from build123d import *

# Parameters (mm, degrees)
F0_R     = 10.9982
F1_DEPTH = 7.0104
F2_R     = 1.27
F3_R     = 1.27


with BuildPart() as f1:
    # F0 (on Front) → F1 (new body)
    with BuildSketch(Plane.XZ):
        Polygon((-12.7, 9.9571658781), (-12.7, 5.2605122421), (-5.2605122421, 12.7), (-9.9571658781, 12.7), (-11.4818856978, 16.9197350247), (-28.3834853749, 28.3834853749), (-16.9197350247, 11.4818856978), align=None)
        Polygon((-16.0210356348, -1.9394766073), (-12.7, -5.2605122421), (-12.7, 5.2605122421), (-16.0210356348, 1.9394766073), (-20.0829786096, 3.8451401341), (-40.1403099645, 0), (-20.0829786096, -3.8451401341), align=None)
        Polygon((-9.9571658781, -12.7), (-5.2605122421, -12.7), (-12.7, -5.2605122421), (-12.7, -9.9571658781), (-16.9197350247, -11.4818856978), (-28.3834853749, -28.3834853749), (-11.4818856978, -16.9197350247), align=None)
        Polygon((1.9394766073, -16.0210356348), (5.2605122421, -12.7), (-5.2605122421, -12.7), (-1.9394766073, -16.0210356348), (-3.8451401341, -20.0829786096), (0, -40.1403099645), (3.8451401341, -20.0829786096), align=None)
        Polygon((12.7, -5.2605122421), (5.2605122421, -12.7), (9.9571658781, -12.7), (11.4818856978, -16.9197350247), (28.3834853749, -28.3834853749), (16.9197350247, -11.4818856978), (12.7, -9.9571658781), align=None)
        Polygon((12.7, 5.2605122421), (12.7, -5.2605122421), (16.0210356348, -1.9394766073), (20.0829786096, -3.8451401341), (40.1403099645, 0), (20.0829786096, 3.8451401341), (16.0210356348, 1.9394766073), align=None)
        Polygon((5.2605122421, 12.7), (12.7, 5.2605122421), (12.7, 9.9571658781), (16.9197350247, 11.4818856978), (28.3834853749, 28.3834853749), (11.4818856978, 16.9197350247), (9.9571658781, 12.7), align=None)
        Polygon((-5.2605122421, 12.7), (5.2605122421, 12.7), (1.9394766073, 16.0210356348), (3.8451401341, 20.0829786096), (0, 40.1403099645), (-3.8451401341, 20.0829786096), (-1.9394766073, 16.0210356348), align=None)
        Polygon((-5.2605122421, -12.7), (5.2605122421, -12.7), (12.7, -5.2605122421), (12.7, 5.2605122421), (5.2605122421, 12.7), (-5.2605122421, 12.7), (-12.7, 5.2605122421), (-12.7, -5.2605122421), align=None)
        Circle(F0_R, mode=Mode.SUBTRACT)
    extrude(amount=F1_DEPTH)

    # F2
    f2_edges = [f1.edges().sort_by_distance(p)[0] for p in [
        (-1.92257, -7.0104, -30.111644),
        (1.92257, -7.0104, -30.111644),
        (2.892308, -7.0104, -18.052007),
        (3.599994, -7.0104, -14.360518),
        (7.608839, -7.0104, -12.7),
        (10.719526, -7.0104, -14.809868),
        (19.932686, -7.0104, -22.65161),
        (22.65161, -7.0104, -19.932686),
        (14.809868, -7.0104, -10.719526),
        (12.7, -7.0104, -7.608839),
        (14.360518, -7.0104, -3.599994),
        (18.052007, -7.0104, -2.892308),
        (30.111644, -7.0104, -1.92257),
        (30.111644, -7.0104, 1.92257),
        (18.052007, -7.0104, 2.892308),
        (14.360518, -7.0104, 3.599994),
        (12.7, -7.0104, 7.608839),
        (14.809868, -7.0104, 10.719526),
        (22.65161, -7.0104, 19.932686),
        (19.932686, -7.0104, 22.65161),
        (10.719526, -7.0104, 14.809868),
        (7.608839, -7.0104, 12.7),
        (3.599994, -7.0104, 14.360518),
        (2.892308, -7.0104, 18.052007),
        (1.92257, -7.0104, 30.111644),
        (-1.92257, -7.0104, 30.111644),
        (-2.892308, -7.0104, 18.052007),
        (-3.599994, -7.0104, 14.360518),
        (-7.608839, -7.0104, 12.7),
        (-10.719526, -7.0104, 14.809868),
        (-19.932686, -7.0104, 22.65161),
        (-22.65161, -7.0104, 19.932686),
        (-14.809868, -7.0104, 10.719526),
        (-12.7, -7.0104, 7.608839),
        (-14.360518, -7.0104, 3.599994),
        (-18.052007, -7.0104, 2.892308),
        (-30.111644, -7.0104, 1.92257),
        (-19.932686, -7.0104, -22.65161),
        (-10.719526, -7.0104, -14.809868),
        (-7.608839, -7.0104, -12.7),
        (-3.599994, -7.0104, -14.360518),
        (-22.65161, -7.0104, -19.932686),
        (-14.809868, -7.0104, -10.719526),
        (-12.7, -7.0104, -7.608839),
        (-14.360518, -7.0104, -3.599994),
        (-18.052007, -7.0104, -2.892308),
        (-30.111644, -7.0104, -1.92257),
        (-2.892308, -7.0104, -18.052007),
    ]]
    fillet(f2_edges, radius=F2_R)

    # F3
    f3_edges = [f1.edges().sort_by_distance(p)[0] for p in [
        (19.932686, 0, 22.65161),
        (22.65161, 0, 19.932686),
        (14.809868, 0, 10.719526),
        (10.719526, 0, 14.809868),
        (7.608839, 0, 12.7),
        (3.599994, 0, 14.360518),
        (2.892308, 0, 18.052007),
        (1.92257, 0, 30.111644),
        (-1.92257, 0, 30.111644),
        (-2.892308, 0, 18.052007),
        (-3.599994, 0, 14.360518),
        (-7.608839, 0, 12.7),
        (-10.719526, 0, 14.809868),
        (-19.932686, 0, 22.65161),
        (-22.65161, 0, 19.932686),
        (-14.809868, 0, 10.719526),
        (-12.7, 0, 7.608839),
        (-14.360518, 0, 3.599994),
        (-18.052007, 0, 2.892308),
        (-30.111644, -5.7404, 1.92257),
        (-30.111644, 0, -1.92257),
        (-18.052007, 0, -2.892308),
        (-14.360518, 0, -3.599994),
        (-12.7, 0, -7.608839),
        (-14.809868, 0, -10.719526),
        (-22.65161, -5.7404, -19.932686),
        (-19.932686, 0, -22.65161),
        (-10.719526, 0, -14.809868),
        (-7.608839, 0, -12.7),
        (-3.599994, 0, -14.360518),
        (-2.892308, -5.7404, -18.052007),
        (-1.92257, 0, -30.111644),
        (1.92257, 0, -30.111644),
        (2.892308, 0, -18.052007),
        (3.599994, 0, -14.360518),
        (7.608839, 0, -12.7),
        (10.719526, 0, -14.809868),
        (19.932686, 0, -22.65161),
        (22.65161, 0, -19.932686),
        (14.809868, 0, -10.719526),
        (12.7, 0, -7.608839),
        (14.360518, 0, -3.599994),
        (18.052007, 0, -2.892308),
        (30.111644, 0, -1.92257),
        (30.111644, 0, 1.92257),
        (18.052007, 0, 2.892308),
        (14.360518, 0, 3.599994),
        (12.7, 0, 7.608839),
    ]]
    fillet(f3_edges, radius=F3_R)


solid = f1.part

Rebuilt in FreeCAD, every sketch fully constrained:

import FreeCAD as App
import Part
import Sketcher

V = App.Vector
Q = App.Units.Quantity


def edges_at(feature, points):
    """Names of the edges that pass closest to the given points."""
    edges = feature.Shape.Edges
    near = lambda p: min(range(len(edges)), key=lambda i: edges[i].distToShape(Part.Vertex(*p))[0])
    return sorted({f"Edge{near(p) + 1}" for p in points})


def add_polygon(sketch, points):
    """Adds a closed chain of lines whose ends are joined by coincident constraints."""
    first, n = sketch.GeometryCount, len(points)
    for a, b in zip(points, points[1:] + points[:1]):
        sketch.addGeometry(Part.LineSegment(App.Vector(*a, 0), App.Vector(*b, 0)), False)
    for i in range(n):
        sketch.addConstraint(Sketcher.Constraint("Coincident", first + i, 2, first + (i + 1) % n, 1))

doc = App.newDocument("Part")
params = doc.addObject("Spreadsheet::Sheet", "Params")
for row, (alias, value) in enumerate([
    ("sketch1_diameter", "0.866 in"),
    ("pad1_length", "0.276 in"),
    ("fillet_radius", "0.05 in"),
    ("fillet2_radius", "0.05 in"),
], start=1):
    params.set(f"A{row}", alias)
    params.set(f"B{row}", "=" + value)
    params.setAlias(f"B{row}", alias)

body = doc.addObject("PartDesign::Body", "Body")

# Sketch on XZ plane
sketch1 = body.newObject("Sketcher::SketchObject", "Sketch")
sketch1.AttachmentSupport = (doc.getObject("XZ_Plane"), [""])
sketch1.MapMode = "FlatFace"
add_polygon(sketch1, [(-12.7, 10), (-12.7, 5.3), (-16, 1.9), (-20.1, 3.8), (-40.1, 0), (-20.1, -3.8), (-16, -1.9), (-12.7, -5.3), (-12.7, -10), (-16.9, -11.5), (-28.4, -28.4), (-11.5, -16.9), (-10, -12.7), (-5.3, -12.7), (-1.9, -16), (-3.8, -20.1), (0, -40.1), (3.8, -20.1), (1.9, -16), (5.3, -12.7), (10, -12.7), (11.5, -16.9), (28.4, -28.4), (16.9, -11.5), (12.7, -10), (12.7, -5.3), (16, -1.9), (20.1, -3.8), (40.1, 0), (20.1, 3.8), (16, 1.9), (12.7, 5.3), (12.7, 10), (16.9, 11.5), (28.4, 28.4), (11.5, 16.9), (10, 12.7), (5.3, 12.7), (1.9, 16), (3.8, 20.1), (0, 40.1), (-3.8, 20.1), (-1.9, 16), (-5.3, 12.7), (-10, 12.7), (-11.5, 16.9), (-28.4, 28.4), (-16.9, 11.5)])  # lines 0-47
sketch1.addGeometry(Part.Circle(V(0, 0, 0), V(0, 0, 1), 11), False)  # 48
sketch1.addConstraint([
    Sketcher.Constraint("Vertical", 0),
    Sketcher.Constraint("Vertical", 7),
    Sketcher.Constraint("Horizontal", 12),
    Sketcher.Constraint("Horizontal", 19),
    Sketcher.Constraint("Vertical", 24),
    Sketcher.Constraint("Vertical", 31),
    Sketcher.Constraint("Horizontal", 36),
    Sketcher.Constraint("Horizontal", 43),
    Sketcher.Constraint("Coincident", 48, 3, -1, 1),
    Sketcher.Constraint("Symmetric", 0, 2, 24, 2, -1, 1),
    Sketcher.Constraint("Symmetric", 1, 2, 25, 2, -1, 1),
    Sketcher.Constraint("Symmetric", 2, 2, 26, 2, -1, 1),
    Sketcher.Constraint("Symmetric", 3, 2, 27, 2, -1, 1),
    Sketcher.Constraint("Symmetric", 4, 2, 28, 2, -1, 1),
    Sketcher.Constraint("Symmetric", 5, 2, 29, 2, -1, 1),
    Sketcher.Constraint("Symmetric", 6, 2, 30, 2, -1, 1),
    Sketcher.Constraint("Symmetric", 8, 2, 32, 2, -1, 1),
    Sketcher.Constraint("Symmetric", 9, 2, 33, 2, -1, 1),
    Sketcher.Constraint("Symmetric", 10, 2, 34, 2, -1, 1),
    Sketcher.Constraint("Symmetric", 11, 2, 35, 2, -1, 1),
    Sketcher.Constraint("Symmetric", 13, 2, 37, 2, -1, 1),
    Sketcher.Constraint("Symmetric", 14, 2, 38, 2, -1, 1),
    Sketcher.Constraint("Symmetric", 15, 2, 39, 2, -1, 1),
    Sketcher.Constraint("Symmetric", 16, 2, 40, 2, -1, 1),
    Sketcher.Constraint("Symmetric", 17, 2, 41, 2, -1, 1),
    Sketcher.Constraint("Symmetric", 18, 2, 42, 2, -1, 1),
    Sketcher.Constraint("Symmetric", 20, 2, 44, 2, -1, 1),
    Sketcher.Constraint("Symmetric", 21, 2, 45, 2, -1, 1),
    Sketcher.Constraint("Symmetric", 22, 2, 46, 2, -1, 1),
    Sketcher.Constraint("Symmetric", 14, 2, 16, 2, -2),
    Sketcher.Constraint("Symmetric", 13, 2, 17, 2, -2),
    Sketcher.Constraint("Symmetric", 12, 2, 18, 2, -2),
    Sketcher.Constraint("Symmetric", 10, 2, 20, 2, -2),
    Sketcher.Constraint("Symmetric", 9, 2, 21, 2, -2),
    Sketcher.Constraint("Symmetric", 8, 2, 22, 2, -2),
    Sketcher.Constraint("Symmetric", 7, 2, 23, 2, -2),
    Sketcher.Constraint("Symmetric", 5, 2, 25, 2, -2),
    Sketcher.Constraint("Symmetric", 4, 2, 26, 2, -2),
    Sketcher.Constraint("PointOnObject", 3, 2, -1),
    Sketcher.Constraint("PointOnObject", 15, 2, -2),
    Sketcher.Constraint("Perpendicular", 1, 6),
    Sketcher.Constraint("Parallel", 6, 13),
    Sketcher.Constraint("Perpendicular", 2, 14),
    Sketcher.Constraint("Perpendicular", 3, 15),
    Sketcher.Constraint("Perpendicular", 13, 18),
    Sketcher.Constraint("Perpendicular", 8, 20),
    Sketcher.Constraint("Perpendicular", 9, 21),
    Sketcher.Constraint("Perpendicular", 11, 23),
    Sketcher.Constraint("Perpendicular", 20, 32),
    Sketcher.Constraint("Parallel", 30, 37),
    Sketcher.Constraint("Perpendicular", 32, 44),
    Sketcher.Constraint("Perpendicular", 35, 47),
    Sketcher.Constraint("Equal", 43, 0),
    Sketcher.Constraint("Equal", 5, 8),
    Sketcher.Constraint("Equal", 4, 9),
    Sketcher.Constraint("Equal", 9, 10),
    Sketcher.Constraint("Equal", 8, 11),
    Sketcher.Constraint("Equal", 6, 13),
    Sketcher.Constraint("Equal", 11, 14),
    Sketcher.Constraint("Equal", 10, 15),
    Sketcher.Constraint("Diameter", 48, Q("0.866 in")),
    Sketcher.Constraint("DistanceX", 0, 2, -1, 1, Q("0.5 in")),
    Sketcher.Constraint("DistanceY", 8, 2, 1, 2, Q("0.5284001 in")),
    Sketcher.Constraint("DistanceX", 8, 2, 5, 2, 0.898699),
    Sketcher.Constraint("DistanceY", 9, 2, 8, 2, 16.9016),
    Sketcher.Constraint("Distance", 2, 4.486751),
    Sketcher.Constraint("DistanceX", 12, 1, 12, 2, 4.696654),
    Sketcher.Constraint("DistanceX", 2, 2, -1, 1, 20.082979),
    Sketcher.Constraint("DistanceY", -1, 1, 2, 2, 3.84514),
])
sketch1.setExpression("Constraints[108]", "Params.sketch1_diameter")
pad1 = body.newObject("PartDesign::Pad", "Pad")
pad1.Profile = sketch1
pad1.setExpression("Length", "Params.pad1_length")
doc.recompute()

fillet = body.newObject("PartDesign::Fillet", "Fillet")
fillet.Base = (pad1, edges_at(pad1, [
    (-1.923, -7.01, -30.112),
    (1.923, -7.01, -30.112),
    (2.892, -7.01, -18.052),
    (3.6, -7.01, -14.361),
    (7.609, -7.01, -12.7),
    (10.72, -7.01, -14.81),
    (19.933, -7.01, -22.652),
    (22.652, -7.01, -19.933),
    (14.81, -7.01, -10.72),
    (12.7, -7.01, -7.609),
    (14.361, -7.01, -3.6),
    (18.052, -7.01, -2.892),
    (30.112, -7.01, -1.923),
    (30.112, -7.01, 1.923),
    (18.052, -7.01, 2.892),
    (14.361, -7.01, 3.6),
    (12.7, -7.01, 7.609),
    (14.81, -7.01, 10.72),
    (22.652, -7.01, 19.933),
    (19.933, -7.01, 22.652),
    (10.72, -7.01, 14.81),
    (7.609, -7.01, 12.7),
    (3.6, -7.01, 14.361),
    (2.892, -7.01, 18.052),
    (1.923, -7.01, 30.112),
    (-1.923, -7.01, 30.112),
    (-2.892, -7.01, 18.052),
    (-3.6, -7.01, 14.361),
    (-7.609, -7.01, 12.7),
    (-10.72, -7.01, 14.81),
    (-19.933, -7.01, 22.652),
    (-22.652, -7.01, 19.933),
    (-14.81, -7.01, 10.72),
    (-12.7, -7.01, 7.609),
    (-14.361, -7.01, 3.6),
    (-18.052, -7.01, 2.892),
    (-30.112, -7.01, 1.923),
    (-19.933, -7.01, -22.652),
    (-10.72, -7.01, -14.81),
    (-7.609, -7.01, -12.7),
    (-3.6, -7.01, -14.361),
    (-22.652, -7.01, -19.933),
    (-14.81, -7.01, -10.72),
    (-12.7, -7.01, -7.609),
    (-14.361, -7.01, -3.6),
    (-18.052, -7.01, -2.892),
    (-30.112, -7.01, -1.923),
    (-2.892, -7.01, -18.052),
]))
fillet.setExpression("Radius", "Params.fillet_radius")
doc.recompute()

fillet2 = body.newObject("PartDesign::Fillet", "Fillet001")
fillet2.Base = (fillet, edges_at(fillet, [
    (19.933, 0, 22.652),
    (22.652, 0, 19.933),
    (14.81, 0, 10.72),
    (10.72, 0, 14.81),
    (7.609, 0, 12.7),
    (3.6, 0, 14.361),
    (2.892, 0, 18.052),
    (1.923, 0, 30.112),
    (-1.923, 0, 30.112),
    (-2.892, 0, 18.052),
    (-3.6, 0, 14.361),
    (-7.609, 0, 12.7),
    (-10.72, 0, 14.81),
    (-19.933, 0, 22.652),
    (-22.652, 0, 19.933),
    (-14.81, 0, 10.72),
    (-12.7, 0, 7.609),
    (-14.361, 0, 3.6),
    (-18.052, 0, 2.892),
    (-30.112, -5.74, 1.923),
    (-30.112, 0, -1.923),
    (-18.052, 0, -2.892),
    (-14.361, 0, -3.6),
    (-12.7, 0, -7.609),
    (-14.81, 0, -10.72),
    (-22.652, -5.74, -19.933),
    (-19.933, 0, -22.652),
    (-10.72, 0, -14.81),
    (-7.609, 0, -12.7),
    (-3.6, 0, -14.361),
    (-2.892, -5.74, -18.052),
    (-1.923, 0, -30.112),
    (1.923, 0, -30.112),
    (2.892, 0, -18.052),
    (3.6, 0, -14.361),
    (7.609, 0, -12.7),
    (10.72, 0, -14.81),
    (19.933, 0, -22.652),
    (22.652, 0, -19.933),
    (14.81, 0, -10.72),
    (12.7, 0, -7.609),
    (14.361, 0, -3.6),
    (18.052, 0, -2.892),
    (30.112, 0, -1.923),
    (30.112, 0, 1.923),
    (18.052, 0, 2.892),
    (14.361, 0, 3.6),
    (12.7, 0, 7.609),
]))
fillet2.setExpression("Radius", "Params.fillet2_radius")

doc.recompute()
